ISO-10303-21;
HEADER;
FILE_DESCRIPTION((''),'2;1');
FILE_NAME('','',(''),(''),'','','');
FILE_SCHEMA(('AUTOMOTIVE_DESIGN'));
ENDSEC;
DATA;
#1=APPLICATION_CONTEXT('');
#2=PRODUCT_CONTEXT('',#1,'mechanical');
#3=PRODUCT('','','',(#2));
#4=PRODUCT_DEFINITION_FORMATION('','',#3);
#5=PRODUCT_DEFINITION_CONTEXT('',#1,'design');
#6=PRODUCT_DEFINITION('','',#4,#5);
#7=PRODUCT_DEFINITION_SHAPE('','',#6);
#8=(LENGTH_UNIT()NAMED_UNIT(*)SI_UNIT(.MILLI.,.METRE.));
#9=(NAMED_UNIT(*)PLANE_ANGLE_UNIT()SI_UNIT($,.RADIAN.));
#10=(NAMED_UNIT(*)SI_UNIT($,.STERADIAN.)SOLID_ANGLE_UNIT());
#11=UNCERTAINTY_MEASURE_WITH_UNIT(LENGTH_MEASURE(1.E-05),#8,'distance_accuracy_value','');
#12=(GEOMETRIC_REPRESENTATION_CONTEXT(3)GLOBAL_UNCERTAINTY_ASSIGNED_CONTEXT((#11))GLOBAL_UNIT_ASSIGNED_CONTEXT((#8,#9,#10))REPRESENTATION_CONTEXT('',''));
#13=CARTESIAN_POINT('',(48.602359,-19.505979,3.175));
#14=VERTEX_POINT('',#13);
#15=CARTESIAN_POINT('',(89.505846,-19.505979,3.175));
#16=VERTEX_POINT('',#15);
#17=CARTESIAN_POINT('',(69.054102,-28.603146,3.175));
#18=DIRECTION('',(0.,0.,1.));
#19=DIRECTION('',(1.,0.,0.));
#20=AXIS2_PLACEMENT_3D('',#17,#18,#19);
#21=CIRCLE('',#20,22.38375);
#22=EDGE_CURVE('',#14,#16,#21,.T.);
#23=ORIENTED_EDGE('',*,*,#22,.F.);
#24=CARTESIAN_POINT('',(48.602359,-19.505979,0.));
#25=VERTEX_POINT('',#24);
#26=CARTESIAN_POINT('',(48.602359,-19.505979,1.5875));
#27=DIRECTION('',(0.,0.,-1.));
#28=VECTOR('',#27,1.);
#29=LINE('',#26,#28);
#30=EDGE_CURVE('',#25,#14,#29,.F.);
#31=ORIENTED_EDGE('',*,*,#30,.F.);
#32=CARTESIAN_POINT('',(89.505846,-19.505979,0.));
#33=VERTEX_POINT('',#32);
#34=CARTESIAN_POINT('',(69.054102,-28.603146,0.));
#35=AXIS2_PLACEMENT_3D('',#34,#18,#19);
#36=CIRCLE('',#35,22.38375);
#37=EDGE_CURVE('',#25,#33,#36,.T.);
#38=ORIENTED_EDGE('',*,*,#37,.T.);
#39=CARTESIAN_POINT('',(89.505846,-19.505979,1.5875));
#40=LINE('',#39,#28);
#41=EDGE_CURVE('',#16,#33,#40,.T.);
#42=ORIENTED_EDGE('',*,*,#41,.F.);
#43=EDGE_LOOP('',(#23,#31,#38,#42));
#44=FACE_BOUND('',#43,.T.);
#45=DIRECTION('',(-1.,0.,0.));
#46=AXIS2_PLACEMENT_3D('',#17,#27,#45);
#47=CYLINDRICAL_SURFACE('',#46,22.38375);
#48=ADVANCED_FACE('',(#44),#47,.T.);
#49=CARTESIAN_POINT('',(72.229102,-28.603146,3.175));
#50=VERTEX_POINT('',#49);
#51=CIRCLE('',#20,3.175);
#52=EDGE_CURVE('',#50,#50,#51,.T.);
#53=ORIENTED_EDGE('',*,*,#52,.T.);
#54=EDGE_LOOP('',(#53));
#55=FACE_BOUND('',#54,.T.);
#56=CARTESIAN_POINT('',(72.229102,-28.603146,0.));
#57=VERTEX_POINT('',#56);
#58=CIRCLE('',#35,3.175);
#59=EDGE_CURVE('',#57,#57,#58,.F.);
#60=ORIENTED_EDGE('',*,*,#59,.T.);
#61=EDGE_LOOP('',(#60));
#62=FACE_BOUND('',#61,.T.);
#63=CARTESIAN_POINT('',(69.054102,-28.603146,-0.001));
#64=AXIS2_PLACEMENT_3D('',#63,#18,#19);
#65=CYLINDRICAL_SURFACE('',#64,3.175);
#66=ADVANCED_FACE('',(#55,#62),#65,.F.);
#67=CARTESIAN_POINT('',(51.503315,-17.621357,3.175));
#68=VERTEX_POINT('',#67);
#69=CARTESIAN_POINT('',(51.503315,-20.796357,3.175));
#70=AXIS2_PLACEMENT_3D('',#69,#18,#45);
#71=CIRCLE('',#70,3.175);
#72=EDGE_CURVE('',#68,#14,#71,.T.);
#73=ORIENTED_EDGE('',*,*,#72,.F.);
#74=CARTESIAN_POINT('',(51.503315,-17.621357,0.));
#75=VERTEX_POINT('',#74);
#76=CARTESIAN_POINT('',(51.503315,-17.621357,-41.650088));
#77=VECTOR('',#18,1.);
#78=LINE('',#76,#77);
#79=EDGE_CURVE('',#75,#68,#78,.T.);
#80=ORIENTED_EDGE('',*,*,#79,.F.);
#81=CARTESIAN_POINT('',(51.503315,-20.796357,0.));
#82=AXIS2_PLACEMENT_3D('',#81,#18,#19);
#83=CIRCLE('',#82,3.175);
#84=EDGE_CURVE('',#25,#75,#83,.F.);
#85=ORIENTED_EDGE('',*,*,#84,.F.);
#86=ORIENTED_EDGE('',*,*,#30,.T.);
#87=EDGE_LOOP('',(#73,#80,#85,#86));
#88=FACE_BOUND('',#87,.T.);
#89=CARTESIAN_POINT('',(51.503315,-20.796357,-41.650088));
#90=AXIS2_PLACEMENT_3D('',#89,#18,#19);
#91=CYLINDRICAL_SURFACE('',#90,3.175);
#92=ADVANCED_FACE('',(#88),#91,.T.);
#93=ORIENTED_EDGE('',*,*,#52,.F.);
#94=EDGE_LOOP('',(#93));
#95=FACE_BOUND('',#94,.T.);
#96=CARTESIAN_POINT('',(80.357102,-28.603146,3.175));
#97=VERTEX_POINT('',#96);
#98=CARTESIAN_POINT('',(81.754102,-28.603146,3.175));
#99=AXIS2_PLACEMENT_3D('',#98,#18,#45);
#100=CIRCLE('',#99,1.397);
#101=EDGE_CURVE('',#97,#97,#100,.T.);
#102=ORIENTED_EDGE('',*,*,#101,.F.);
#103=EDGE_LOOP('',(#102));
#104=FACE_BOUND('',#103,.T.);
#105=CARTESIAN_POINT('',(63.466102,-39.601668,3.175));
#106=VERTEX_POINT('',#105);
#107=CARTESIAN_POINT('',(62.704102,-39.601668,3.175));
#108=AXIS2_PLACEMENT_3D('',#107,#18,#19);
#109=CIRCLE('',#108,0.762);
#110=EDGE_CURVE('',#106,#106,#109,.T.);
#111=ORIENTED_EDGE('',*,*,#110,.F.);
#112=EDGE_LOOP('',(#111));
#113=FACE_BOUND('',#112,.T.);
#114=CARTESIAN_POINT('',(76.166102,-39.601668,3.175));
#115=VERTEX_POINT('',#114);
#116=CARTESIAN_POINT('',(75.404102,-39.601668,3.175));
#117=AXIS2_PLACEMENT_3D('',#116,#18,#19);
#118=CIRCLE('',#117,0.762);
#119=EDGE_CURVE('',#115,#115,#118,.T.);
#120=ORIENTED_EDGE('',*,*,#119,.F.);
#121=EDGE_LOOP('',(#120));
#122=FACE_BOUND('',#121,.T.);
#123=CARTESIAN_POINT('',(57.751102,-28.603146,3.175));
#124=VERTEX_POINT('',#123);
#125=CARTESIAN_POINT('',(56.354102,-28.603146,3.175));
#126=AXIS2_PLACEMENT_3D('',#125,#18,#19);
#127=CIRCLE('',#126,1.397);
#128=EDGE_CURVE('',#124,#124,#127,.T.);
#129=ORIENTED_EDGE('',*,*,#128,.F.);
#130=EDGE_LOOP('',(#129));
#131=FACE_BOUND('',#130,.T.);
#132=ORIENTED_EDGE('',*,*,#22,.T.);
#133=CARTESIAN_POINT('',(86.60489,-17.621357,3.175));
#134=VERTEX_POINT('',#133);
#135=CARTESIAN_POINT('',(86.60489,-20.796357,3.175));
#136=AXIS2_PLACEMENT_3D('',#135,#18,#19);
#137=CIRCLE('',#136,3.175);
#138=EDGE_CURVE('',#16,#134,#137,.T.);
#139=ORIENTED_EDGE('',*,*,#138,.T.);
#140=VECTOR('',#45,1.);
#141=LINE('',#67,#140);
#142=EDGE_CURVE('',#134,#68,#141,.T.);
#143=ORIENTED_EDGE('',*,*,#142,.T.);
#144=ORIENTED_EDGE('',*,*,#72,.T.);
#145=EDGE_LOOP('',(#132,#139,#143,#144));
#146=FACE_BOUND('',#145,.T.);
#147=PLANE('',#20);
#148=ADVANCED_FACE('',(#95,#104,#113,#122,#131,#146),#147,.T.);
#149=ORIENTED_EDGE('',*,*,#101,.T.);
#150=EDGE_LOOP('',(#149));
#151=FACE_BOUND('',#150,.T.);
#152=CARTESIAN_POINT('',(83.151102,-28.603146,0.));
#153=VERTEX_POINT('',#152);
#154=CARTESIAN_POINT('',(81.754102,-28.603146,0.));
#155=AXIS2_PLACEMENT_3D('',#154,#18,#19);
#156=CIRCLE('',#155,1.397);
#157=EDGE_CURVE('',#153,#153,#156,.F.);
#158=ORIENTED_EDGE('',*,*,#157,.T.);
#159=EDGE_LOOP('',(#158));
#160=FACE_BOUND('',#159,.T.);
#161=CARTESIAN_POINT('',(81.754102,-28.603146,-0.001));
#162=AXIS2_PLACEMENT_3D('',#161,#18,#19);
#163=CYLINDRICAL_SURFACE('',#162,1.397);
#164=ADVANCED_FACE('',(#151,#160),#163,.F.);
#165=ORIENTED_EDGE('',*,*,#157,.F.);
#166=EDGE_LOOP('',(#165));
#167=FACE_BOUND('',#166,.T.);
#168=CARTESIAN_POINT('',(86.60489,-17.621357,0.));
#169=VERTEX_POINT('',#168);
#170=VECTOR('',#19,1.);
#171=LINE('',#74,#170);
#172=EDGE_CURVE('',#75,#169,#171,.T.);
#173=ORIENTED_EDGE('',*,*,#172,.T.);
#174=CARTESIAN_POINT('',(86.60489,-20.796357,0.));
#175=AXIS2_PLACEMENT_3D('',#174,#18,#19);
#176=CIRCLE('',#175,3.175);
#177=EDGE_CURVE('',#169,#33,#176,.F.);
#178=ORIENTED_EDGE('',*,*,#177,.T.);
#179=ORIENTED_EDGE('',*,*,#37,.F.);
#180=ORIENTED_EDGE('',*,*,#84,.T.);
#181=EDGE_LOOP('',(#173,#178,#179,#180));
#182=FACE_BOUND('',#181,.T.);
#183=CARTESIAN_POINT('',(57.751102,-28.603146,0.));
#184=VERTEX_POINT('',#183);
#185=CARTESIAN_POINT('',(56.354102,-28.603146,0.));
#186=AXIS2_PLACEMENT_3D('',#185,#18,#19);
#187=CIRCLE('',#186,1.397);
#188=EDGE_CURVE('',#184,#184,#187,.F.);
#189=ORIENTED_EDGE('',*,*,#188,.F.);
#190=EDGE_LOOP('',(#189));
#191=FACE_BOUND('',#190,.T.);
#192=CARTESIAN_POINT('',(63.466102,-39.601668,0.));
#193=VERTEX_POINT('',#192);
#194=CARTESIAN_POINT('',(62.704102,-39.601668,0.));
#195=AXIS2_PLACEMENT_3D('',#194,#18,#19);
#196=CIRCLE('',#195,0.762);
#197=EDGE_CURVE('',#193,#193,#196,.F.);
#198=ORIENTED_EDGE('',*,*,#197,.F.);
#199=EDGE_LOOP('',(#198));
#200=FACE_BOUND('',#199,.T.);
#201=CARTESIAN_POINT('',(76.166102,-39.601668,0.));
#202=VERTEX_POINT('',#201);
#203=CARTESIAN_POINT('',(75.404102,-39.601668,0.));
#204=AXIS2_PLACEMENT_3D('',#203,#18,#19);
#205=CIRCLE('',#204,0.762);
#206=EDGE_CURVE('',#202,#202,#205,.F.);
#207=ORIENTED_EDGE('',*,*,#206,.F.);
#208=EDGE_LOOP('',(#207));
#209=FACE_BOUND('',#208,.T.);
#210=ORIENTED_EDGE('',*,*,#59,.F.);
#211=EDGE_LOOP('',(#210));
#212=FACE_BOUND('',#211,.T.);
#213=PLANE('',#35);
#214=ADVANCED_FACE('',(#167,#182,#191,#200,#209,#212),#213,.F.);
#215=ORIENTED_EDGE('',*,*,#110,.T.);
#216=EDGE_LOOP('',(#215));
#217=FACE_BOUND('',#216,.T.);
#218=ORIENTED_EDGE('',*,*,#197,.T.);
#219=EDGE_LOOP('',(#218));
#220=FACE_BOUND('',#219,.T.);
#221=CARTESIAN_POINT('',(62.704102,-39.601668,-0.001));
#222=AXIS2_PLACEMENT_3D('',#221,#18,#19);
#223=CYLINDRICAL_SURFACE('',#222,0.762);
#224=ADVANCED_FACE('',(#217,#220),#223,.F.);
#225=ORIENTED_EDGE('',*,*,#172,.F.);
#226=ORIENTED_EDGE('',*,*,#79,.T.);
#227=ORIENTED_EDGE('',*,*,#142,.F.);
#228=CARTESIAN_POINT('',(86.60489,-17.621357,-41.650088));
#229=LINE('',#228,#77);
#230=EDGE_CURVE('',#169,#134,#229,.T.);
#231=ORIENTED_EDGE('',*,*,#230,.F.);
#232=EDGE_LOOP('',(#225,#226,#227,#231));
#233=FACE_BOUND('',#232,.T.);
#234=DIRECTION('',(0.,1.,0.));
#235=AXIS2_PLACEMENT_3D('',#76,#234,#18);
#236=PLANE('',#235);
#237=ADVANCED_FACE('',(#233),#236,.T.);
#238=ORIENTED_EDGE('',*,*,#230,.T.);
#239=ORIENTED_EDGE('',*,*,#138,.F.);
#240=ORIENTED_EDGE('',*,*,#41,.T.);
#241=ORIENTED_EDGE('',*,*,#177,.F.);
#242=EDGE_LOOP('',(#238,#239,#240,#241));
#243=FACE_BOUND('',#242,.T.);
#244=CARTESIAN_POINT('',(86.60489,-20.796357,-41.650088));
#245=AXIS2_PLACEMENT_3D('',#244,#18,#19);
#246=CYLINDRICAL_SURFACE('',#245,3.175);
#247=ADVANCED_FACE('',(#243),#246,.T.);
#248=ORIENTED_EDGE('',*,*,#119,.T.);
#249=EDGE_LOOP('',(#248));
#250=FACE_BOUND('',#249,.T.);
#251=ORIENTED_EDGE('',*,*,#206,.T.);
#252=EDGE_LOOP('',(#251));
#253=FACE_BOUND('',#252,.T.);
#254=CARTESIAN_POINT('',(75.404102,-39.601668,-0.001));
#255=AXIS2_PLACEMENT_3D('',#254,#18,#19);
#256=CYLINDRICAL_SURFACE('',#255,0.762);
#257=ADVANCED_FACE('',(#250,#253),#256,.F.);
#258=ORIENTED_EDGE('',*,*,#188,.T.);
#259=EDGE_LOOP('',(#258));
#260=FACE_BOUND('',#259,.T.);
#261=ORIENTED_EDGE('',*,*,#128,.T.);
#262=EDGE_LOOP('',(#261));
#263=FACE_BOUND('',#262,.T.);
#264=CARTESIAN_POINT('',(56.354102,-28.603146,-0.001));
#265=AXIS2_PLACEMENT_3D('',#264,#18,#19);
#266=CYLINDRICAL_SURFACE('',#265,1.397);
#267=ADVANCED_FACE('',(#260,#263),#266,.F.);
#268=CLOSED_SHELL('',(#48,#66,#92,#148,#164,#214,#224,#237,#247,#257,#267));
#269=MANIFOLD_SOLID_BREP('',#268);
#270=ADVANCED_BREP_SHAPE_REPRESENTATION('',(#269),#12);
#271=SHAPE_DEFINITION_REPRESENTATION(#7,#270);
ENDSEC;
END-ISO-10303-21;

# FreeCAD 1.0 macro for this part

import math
import FreeCAD as App
import Part
import Sketcher
from FreeCAD import Vector
Q = App.Units.Quantity

doc = App.newDocument("Part")
body = doc.addObject("PartDesign::Body", "Body")

sketch1 = body.newObject("Sketcher::SketchObject", "Sketch")
sketch1.AttachmentSupport = (doc.getObject("XY_Plane"), [""])
sketch1.MapMode = "FlatFace"
sketch1.addGeometry(Part.Circle(Vector(69, -29, 0), Vector(0, 0, 1), 22), False)
sketch1.addConstraint(Sketcher.Constraint("Diameter", 0, Q("1.7625 in")))
sketch1.addConstraint(Sketcher.Constraint("DistanceX", -1, 1, 0, 3, Q("69.054102 mm")))
sketch1.addConstraint(Sketcher.Constraint("DistanceY", 0, 3, -1, 1, Q("28.603146 mm")))
pad1 = body.newObject("PartDesign::Pad", "Pad")
pad1.Profile = sketch1
pad1.Length = Q("0.125 in")

sketch2 = body.newObject("Sketcher::SketchObject", "Sketch001")
sketch2.AttachmentSupport = (doc.getObject("XY_Plane"), [""])
sketch2.MapMode = "FlatFace"
sketch2.AttachmentOffset = App.Placement(Vector(0, 0, 0.125 * 25.4), App.Rotation())
sketch2.addGeometry(Part.Circle(Vector(69, 13, 0), Vector(0, 0, 1), 38), False)
sketch2.addConstraint(Sketcher.Constraint("Diameter", 0, Q("76.074006 mm")))
sketch2.addConstraint(Sketcher.Constraint("DistanceX", -1, 1, 0, 3, Q("69.054102 mm")))
sketch2.addConstraint(Sketcher.Constraint("DistanceY", -1, 1, 0, 3, Q("12.564876 mm")))
pocket1 = body.newObject("PartDesign::Pocket", "Pocket")
pocket1.Profile = sketch2
pocket1.Length = Q("0.125 in")

sketch3 = body.newObject("Sketcher::SketchObject", "Sketch002")
sketch3.AttachmentSupport = (doc.getObject("XY_Plane"), [""])
sketch3.MapMode = "FlatFace"
sketch3.AttachmentOffset = App.Placement(Vector(0, 0, 0.125 * 25.4), App.Rotation())
sketch3.addGeometry(Part.Circle(Vector(56.4, -28.6, 0), Vector(0, 0, 1), 1.4), False)
sketch3.addConstraint(Sketcher.Constraint("Diameter", 0, Q("0.11 in")))
sketch3.addConstraint(Sketcher.Constraint("DistanceX", -1, 1, 0, 3, Q("56.354102 mm")))
sketch3.addConstraint(Sketcher.Constraint("DistanceY", 0, 3, -1, 1, Q("28.603146 mm")))
pocket2 = body.newObject("PartDesign::Pocket", "Pocket001")
pocket2.Profile = sketch3
pocket2.Type = "UpToFirst"

sketch4 = body.newObject("Sketcher::SketchObject", "Sketch003")
sketch4.AttachmentSupport = (doc.getObject("XY_Plane"), [""])
sketch4.MapMode = "FlatFace"
sketch4.AttachmentOffset = App.Placement(Vector(0, 0, 0.125 * 25.4), App.Rotation())
sketch4.addGeometry(Part.Circle(Vector(81.8, -28.6, 0), Vector(0, 0, 1), 1.4), False)
sketch4.addConstraint(Sketcher.Constraint("Diameter", 0, Q("0.11 in")))
sketch4.addConstraint(Sketcher.Constraint("DistanceX", -1, 1, 0, 3, Q("81.754102 mm")))
sketch4.addConstraint(Sketcher.Constraint("DistanceY", 0, 3, -1, 1, Q("28.603146 mm")))
pocket3 = body.newObject("PartDesign::Pocket", "Pocket002")
pocket3.Profile = sketch4
pocket3.Type = "UpToFirst"

sketch5 = body.newObject("Sketcher::SketchObject", "Sketch004")
sketch5.AttachmentSupport = (doc.getObject("XY_Plane"), [""])
sketch5.MapMode = "FlatFace"
sketch5.AttachmentOffset = App.Placement(Vector(0, 0, 0.125 * 25.4), App.Rotation())
sketch5.addGeometry(Part.Circle(Vector(62.7, -39.6, 0), Vector(0, 0, 1), 0.8), False)
sketch5.addConstraint(Sketcher.Constraint("Diameter", 0, Q("0.06 in")))
sketch5.addConstraint(Sketcher.Constraint("DistanceY", 0, 3, -1, 1, Q("39.601668 mm")))
sketch5.addConstraint(Sketcher.Constraint("DistanceX", -1, 1, 0, 3, Q("62.704102 mm")))
pocket4 = body.newObject("PartDesign::Pocket", "Pocket003")
pocket4.Profile = sketch5
pocket4.Type = "UpToFirst"

sketch6 = body.newObject("Sketcher::SketchObject", "Sketch005")
sketch6.AttachmentSupport = (doc.getObject("XY_Plane"), [""])
sketch6.MapMode = "FlatFace"
sketch6.AttachmentOffset = App.Placement(Vector(0, 0, 0.125 * 25.4), App.Rotation())
sketch6.addGeometry(Part.Circle(Vector(75.4, -39.6, 0), Vector(0, 0, 1), 0.8), False)
sketch6.addConstraint(Sketcher.Constraint("Diameter", 0, Q("0.06 in")))
sketch6.addConstraint(Sketcher.Constraint("DistanceY", 0, 3, -1, 1, Q("39.601668 mm")))
sketch6.addConstraint(Sketcher.Constraint("DistanceX", -1, 1, 0, 3, Q("75.404102 mm")))
pocket5 = body.newObject("PartDesign::Pocket", "Pocket004")
pocket5.Profile = sketch6
pocket5.Type = "UpToFirst"

sketch7 = body.newObject("Sketcher::SketchObject", "Sketch006")
sketch7.AttachmentSupport = (doc.getObject("XY_Plane"), [""])
sketch7.MapMode = "FlatFace"
sketch7.AttachmentOffset = App.Placement(Vector(0, 0, 0.125 * 25.4), App.Rotation())
sketch7.addGeometry(Part.LineSegment(Vector(86.6, -17.6, 0), Vector(51.5, -17.6, 0)), False)
sketch7.addGeometry(Part.ArcOfCircle(Part.Circle(Vector(51.5, -20.8, 0), Vector(0, 0, 1), 3.2), math.radians(90), math.radians(156)), False)
sketch7.addGeometry(Part.ArcOfCircle(Part.Circle(Vector(69.1, 12.6, 0), Vector(0, 0, 1), 38), math.radians(-123), math.radians(-57)), False)
sketch7.addGeometry(Part.ArcOfCircle(Part.Circle(Vector(86.6, -20.8, 0), Vector(0, 0, 1), 3.2), math.radians(24), math.radians(90)), False)
sketch7.addConstraint(Sketcher.Constraint("Tangent", 0, 2, 1, 1))
sketch7.addConstraint(Sketcher.Constraint("Coincident", 1, 2, 2, 1))
sketch7.addConstraint(Sketcher.Constraint("Coincident", 2, 2, 3, 1))
sketch7.addConstraint(Sketcher.Constraint("Tangent", 3, 2, 0, 1))
sketch7.addConstraint(Sketcher.Constraint("Horizontal", 0))
sketch7.addConstraint(Sketcher.Constraint("Equal", 1, 3))
sketch7.addConstraint(Sketcher.Constraint("Horizontal", 1, 2, 2, 2))
sketch7.addConstraint(Sketcher.Constraint("Radius", 1, Q("0.125 in")))
sketch7.addConstraint(Sketcher.Constraint("Radius", 2, Q("38.037003 mm")))
sketch7.addConstraint(Sketcher.Constraint("DistanceX", 0, 2, 0, 1, Q("35.101574 mm")))
sketch7.addConstraint(Sketcher.Constraint("DistanceX", -1, 1, 3, 3, Q("86.60489 mm")))
sketch7.addConstraint(Sketcher.Constraint("DistanceX", -1, 1, 1, 2, Q("48.602359 mm")))
sketch7.addConstraint(Sketcher.Constraint("DistanceY", 1, 2, -1, 1, Q("19.505979 mm")))
pad2 = body.newObject("PartDesign::Pad", "Pad001")
pad2.Profile = sketch7
pad2.Length = Q("0.125 in")
pad2.Reversed = True

sketch8 = body.newObject("Sketcher::SketchObject", "Sketch007")
sketch8.AttachmentSupport = (doc.getObject("XY_Plane"), [""])
sketch8.MapMode = "FlatFace"
sketch8.AttachmentOffset = App.Placement(Vector(0, 0, 0.125 * 25.4), App.Rotation())
sketch8.addGeometry(Part.Circle(Vector(69.1, -28.6, 0), Vector(0, 0, 1), 3.2), False)
sketch8.addConstraint(Sketcher.Constraint("Diameter", 0, Q("0.25 in")))
sketch8.addConstraint(Sketcher.Constraint("DistanceX", -1, 1, 0, 3, Q("69.054102 mm")))
sketch8.addConstraint(Sketcher.Constraint("DistanceY", 0, 3, -1, 1, Q("28.603146 mm")))
pocket6 = body.newObject("PartDesign::Pocket", "Pocket005")
pocket6.Profile = sketch8
pocket6.Type = "UpToFirst"

doc.recompute()
